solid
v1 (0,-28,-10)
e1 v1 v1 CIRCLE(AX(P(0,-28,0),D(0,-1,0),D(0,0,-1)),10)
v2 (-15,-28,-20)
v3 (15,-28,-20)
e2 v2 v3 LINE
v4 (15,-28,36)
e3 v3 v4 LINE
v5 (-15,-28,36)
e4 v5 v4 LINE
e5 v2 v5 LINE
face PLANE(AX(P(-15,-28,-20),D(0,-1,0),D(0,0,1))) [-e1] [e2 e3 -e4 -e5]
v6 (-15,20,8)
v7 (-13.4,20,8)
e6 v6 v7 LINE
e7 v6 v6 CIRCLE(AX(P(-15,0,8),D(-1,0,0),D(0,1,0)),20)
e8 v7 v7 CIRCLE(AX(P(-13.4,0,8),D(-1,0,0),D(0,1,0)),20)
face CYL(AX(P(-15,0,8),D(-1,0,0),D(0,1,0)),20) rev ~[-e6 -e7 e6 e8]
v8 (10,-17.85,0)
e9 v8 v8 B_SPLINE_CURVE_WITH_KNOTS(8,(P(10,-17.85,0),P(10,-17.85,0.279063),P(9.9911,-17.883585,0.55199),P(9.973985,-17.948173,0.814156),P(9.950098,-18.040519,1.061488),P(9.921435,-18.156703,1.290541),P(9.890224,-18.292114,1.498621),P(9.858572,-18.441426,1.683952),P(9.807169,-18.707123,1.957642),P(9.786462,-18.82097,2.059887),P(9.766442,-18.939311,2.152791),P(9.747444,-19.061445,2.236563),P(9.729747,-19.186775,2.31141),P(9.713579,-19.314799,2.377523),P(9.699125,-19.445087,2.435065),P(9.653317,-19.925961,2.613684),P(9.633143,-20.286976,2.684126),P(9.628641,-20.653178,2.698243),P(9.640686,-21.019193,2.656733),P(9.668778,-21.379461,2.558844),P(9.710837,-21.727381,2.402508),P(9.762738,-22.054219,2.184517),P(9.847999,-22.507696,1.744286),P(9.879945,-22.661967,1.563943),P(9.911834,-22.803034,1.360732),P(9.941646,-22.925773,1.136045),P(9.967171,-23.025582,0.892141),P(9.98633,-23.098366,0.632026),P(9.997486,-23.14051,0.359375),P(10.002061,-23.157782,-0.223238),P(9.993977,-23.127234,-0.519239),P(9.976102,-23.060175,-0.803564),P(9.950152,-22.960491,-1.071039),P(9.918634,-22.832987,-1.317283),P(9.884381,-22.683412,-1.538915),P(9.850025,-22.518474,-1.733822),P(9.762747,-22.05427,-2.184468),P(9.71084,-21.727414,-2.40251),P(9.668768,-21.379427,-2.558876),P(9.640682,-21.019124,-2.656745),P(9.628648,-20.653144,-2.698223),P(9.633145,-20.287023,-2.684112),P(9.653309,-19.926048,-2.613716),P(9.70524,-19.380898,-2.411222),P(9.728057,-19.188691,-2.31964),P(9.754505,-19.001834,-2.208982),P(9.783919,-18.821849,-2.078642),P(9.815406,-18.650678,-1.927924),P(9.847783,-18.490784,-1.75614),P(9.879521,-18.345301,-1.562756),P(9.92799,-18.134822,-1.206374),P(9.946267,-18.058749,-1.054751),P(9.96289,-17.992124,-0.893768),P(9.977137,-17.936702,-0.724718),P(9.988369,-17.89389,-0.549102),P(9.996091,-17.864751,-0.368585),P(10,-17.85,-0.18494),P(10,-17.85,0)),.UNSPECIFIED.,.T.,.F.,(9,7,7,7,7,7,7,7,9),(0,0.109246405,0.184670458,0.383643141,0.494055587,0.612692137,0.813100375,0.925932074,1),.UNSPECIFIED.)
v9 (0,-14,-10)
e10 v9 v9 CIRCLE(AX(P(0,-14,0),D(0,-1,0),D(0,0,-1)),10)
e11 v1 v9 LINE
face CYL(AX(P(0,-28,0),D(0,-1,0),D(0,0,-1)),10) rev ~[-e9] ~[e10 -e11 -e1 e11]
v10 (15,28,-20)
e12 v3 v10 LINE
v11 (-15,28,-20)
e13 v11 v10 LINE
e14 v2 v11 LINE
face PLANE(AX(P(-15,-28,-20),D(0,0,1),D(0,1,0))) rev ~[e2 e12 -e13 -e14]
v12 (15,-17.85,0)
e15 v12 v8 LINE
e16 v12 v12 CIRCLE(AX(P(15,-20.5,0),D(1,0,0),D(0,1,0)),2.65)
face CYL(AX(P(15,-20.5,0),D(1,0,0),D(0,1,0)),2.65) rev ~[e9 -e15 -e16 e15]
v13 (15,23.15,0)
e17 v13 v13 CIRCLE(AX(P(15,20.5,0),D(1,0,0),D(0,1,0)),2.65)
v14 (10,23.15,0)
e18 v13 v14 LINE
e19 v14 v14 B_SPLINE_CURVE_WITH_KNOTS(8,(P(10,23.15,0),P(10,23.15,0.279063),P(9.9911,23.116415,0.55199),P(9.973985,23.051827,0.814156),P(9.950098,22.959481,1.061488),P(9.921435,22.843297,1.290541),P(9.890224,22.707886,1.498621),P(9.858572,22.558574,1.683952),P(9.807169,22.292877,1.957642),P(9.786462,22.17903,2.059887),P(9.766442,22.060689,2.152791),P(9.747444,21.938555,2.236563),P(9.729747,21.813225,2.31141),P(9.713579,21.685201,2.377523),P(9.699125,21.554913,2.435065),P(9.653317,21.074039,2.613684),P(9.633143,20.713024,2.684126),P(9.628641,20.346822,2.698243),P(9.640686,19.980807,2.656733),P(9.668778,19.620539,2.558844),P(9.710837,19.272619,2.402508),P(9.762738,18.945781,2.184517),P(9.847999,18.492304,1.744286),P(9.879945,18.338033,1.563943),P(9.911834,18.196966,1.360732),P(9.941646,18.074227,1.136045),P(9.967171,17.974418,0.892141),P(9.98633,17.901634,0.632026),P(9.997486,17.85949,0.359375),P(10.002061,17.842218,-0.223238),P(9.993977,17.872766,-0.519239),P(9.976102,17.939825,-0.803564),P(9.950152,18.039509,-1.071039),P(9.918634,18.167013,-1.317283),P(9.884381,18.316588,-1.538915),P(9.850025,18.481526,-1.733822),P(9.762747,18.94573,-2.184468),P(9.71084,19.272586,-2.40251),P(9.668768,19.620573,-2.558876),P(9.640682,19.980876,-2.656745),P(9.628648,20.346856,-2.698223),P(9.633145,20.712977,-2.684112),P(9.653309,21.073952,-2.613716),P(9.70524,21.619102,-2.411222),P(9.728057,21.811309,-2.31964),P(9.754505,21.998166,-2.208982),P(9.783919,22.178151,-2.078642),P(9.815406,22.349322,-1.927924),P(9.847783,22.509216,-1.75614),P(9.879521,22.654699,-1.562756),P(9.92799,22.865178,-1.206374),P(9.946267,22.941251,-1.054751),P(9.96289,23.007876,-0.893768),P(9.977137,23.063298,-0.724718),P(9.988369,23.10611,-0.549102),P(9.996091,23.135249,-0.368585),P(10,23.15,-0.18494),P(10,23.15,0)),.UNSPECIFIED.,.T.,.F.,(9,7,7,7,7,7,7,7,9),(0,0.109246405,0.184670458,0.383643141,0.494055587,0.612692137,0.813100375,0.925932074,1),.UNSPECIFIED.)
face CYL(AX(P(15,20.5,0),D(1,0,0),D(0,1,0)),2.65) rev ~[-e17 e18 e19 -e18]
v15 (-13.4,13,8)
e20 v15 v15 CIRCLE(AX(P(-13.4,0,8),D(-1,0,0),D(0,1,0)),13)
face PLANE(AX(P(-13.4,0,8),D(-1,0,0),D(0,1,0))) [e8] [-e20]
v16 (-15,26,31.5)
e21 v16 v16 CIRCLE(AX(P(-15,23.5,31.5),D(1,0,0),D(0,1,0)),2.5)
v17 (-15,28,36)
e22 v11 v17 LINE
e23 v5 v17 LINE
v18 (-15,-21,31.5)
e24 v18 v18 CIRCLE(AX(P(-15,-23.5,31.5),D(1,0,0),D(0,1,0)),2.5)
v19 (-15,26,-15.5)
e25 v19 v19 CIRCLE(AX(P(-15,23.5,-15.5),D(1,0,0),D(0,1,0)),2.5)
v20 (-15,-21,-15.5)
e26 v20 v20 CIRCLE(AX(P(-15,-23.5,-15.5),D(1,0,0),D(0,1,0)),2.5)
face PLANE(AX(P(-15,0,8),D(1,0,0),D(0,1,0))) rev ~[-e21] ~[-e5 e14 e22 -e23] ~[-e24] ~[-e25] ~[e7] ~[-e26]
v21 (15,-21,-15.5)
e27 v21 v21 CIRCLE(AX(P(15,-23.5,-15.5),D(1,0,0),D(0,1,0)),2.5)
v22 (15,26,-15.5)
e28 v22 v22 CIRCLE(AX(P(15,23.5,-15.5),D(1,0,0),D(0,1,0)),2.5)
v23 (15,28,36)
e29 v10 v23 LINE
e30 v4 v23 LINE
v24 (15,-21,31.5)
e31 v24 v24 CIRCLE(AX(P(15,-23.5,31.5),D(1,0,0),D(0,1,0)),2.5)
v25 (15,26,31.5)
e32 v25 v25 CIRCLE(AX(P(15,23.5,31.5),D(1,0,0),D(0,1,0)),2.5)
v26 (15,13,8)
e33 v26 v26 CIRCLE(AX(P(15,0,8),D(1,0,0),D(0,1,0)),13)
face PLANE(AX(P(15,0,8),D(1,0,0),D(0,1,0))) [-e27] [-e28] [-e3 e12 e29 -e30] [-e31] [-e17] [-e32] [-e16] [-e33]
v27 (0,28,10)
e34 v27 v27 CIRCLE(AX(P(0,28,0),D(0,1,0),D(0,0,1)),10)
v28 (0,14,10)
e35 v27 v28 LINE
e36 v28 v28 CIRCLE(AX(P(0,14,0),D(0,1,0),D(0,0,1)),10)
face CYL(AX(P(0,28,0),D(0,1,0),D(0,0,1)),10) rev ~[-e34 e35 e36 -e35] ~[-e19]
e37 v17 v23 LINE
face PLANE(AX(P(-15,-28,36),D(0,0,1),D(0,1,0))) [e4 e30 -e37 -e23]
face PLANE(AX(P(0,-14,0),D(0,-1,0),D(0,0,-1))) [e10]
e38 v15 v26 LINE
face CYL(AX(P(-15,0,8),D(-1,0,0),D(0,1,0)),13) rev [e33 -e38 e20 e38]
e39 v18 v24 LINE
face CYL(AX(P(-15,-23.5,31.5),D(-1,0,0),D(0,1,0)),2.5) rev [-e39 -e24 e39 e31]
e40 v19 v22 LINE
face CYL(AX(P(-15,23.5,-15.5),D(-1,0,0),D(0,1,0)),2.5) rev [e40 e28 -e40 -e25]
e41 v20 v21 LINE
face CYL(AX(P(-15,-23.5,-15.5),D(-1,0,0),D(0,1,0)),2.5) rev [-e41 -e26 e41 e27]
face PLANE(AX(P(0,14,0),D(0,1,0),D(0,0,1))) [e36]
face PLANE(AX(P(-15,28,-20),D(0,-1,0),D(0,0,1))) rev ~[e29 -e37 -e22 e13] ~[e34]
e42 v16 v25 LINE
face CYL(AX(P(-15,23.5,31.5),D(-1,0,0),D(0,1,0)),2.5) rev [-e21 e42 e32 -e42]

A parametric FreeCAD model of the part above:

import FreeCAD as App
import Part
import Sketcher
Q = App.Units.Quantity


def add_polygon(sketch, points):
    """Adds a closed chain of lines whose ends are joined by coincident constraints."""
    first, n = sketch.GeometryCount, len(points)
    for a, b in zip(points, points[1:] + points[:1]):
        sketch.addGeometry(Part.LineSegment(App.Vector(*a, 0), App.Vector(*b, 0)), False)
    for i in range(n):
        sketch.addConstraint(Sketcher.Constraint("Coincident", first + i, 2, first + (i + 1) % n, 1))

doc = App.newDocument("Part")
params = doc.addObject("Spreadsheet::Sheet", "Params")
for row, (alias, value) in enumerate([
    ("sketch1_diameter", "5 mm"),
    ("sketch1_diameter2", "26 mm"),
    ("sketch1_width", "56 mm"),
    ("pad1_length", "30 mm"),
    ("sketch2_diameter", "20 mm"),
    ("pocket1_length", "14 mm"),
    ("sketch3_diameter", "5.3 mm"),
    ("pocket2_length", "7 mm"),
    ("sketch4_diameter", "20 mm"),
    ("pocket3_length", "14 mm"),
    ("sketch5_diameter", "40 mm"),
    ("pocket4_length", "1.6 mm"),
], start=1):
    params.set(f"A{row}", alias)
    params.set(f"B{row}", "=" + value)
    params.setAlias(f"B{row}", alias)

body = doc.addObject("PartDesign::Body", "Body")

# Sketch on YZ plane
sketch1 = body.newObject("Sketcher::SketchObject", "Sketch")
sketch1.AttachmentSupport = (doc.getObject("YZ_Plane"), [""])
sketch1.MapMode = "FlatFace"
add_polygon(sketch1, [(-28, 28), (-28, -28), (28, -28), (28, 28)])  # lines 0-3
sketch1.addGeometry(Part.Circle(App.Vector(-23.5, -23.5, 0), App.Vector(0, 0, 1), 2.5), False)  # 4
sketch1.addGeometry(Part.Circle(App.Vector(23.5, -23.5, 0), App.Vector(0, 0, 1), 2.5), False)  # 5
sketch1.addGeometry(Part.Circle(App.Vector(-23.5, 23.5, 0), App.Vector(0, 0, 1), 2.5), False)  # 6
sketch1.addGeometry(Part.Circle(App.Vector(0, 0, 0), App.Vector(0, 0, 1), 13), False)  # 7
sketch1.addGeometry(Part.Circle(App.Vector(23.5, 23.5, 0), App.Vector(0, 0, 1), 2.5), False)  # 8
sketch1.addConstraint([
    Sketcher.Constraint("Vertical", 0),
    Sketcher.Constraint("Horizontal", 1),
    Sketcher.Constraint("Vertical", 2),
    Sketcher.Constraint("Horizontal", 3),
    Sketcher.Constraint("Coincident", 7, 3, -1, 1),
    Sketcher.Constraint("Equal", 4, 5),
    Sketcher.Constraint("Equal", 5, 6),
    Sketcher.Constraint("Equal", 6, 8),
    Sketcher.Constraint("Symmetric", 5, 3, 6, 3, -1, 1),
    Sketcher.Constraint("Symmetric", 4, 3, 8, 3, -1, 1),
    Sketcher.Constraint("Symmetric", 0, 2, 2, 2, -1, 1),
    Sketcher.Constraint("Symmetric", 4, 3, 5, 3, -2),
    Sketcher.Constraint("Equal", 3, 0),
    Sketcher.Constraint("Diameter", 4, Q("5 mm")),
    Sketcher.Constraint("Diameter", 7, Q("26 mm")),
    Sketcher.Constraint("DistanceX", 1, 1, 1, 2, Q("56 mm")),
    Sketcher.Constraint("DistanceX", 4, 3, 5, 3, Q("47 mm")),
    Sketcher.Constraint("DistanceY", 4, 3, 6, 3, Q("47 mm")),
])
sketch1.setExpression("Constraints[17]", "Params.sketch1_diameter")
sketch1.setExpression("Constraints[18]", "Params.sketch1_diameter2")
sketch1.setExpression("Constraints[19]", "Params.sketch1_width")
pad1 = body.newObject("PartDesign::Pad", "Pad")
pad1.Profile = sketch1
pad1.setExpression("Length", "Params.pad1_length")

# Sketch on XZ plane
sketch2 = body.newObject("Sketcher::SketchObject", "Sketch001")
sketch2.AttachmentSupport = (doc.getObject("XZ_Plane"), [""])
sketch2.MapMode = "FlatFace"
sketch2.AttachmentOffset = App.Placement(App.Vector(0, 0, 28), App.Rotation())
sketch2.addGeometry(Part.Circle(App.Vector(15, -8, 0), App.Vector(0, 0, 1), 10), False)
sketch2.addConstraint([
    Sketcher.Constraint("Diameter", 0, Q("20 mm")),
    Sketcher.Constraint("DistanceX", -1, 1, 0, 3, Q("15 mm")),
    Sketcher.Constraint("DistanceY", 0, 3, -1, 1, Q("8 mm")),
])
sketch2.setExpression("Constraints[0]", "Params.sketch2_diameter")
pocket1 = body.newObject("PartDesign::Pocket", "Pocket")
pocket1.Profile = sketch2
pocket1.setExpression("Length", "Params.pocket1_length")

# Sketch on YZ plane
sketch3 = body.newObject("Sketcher::SketchObject", "Sketch002")
sketch3.AttachmentSupport = (doc.getObject("YZ_Plane"), [""])
sketch3.MapMode = "FlatFace"
sketch3.AttachmentOffset = App.Placement(App.Vector(0, 0, 30), App.Rotation())
sketch3.addGeometry([
    Part.Circle(App.Vector(-20.5, -8, 0), App.Vector(0, 0, 1), 2.65),
    Part.Circle(App.Vector(20.5, -8, 0), App.Vector(0, 0, 1), 2.65),
], False)
sketch3.addConstraint([
    Sketcher.Constraint("Equal", 0, 1),
    Sketcher.Constraint("Symmetric", 0, 3, 1, 3, -2),
    Sketcher.Constraint("Diameter", 0, Q("5.3 mm")),
    Sketcher.Constraint("DistanceY", 0, 3, -1, 1, Q("8 mm")),
    Sketcher.Constraint("DistanceX", 0, 3, 1, 3, Q("41 mm")),
])
sketch3.setExpression("Constraints[2]", "Params.sketch3_diameter")
pocket2 = body.newObject("PartDesign::Pocket", "Pocket001")
pocket2.Profile = sketch3
pocket2.setExpression("Length", "Params.pocket2_length")

# Sketch on XZ plane
sketch4 = body.newObject("Sketcher::SketchObject", "Sketch003")
sketch4.AttachmentSupport = (doc.getObject("XZ_Plane"), [""])
sketch4.MapMode = "FlatFace"
sketch4.AttachmentOffset = App.Placement(App.Vector(0, 0, -28), App.Rotation())
sketch4.addGeometry(Part.Circle(App.Vector(15, -8, 0), App.Vector(0, 0, 1), 10), False)
sketch4.addConstraint([
    Sketcher.Constraint("Diameter", 0, Q("20 mm")),
    Sketcher.Constraint("DistanceX", -1, 1, 0, 3, Q("15 mm")),
    Sketcher.Constraint("DistanceY", 0, 3, -1, 1, Q("8 mm")),
])
sketch4.setExpression("Constraints[0]", "Params.sketch4_diameter")
pocket3 = body.newObject("PartDesign::Pocket", "Pocket002")
pocket3.Profile = sketch4
pocket3.setExpression("Length", "Params.pocket3_length")
pocket3.Reversed = True

# Sketch on YZ plane
sketch5 = body.newObject("Sketcher::SketchObject", "Sketch004")
sketch5.AttachmentSupport = (doc.getObject("YZ_Plane"), [""])
sketch5.MapMode = "FlatFace"
sketch5.addGeometry(Part.Circle(App.Vector(0, 0, 0), App.Vector(0, 0, 1), 20), False)
sketch5.addConstraint([
    Sketcher.Constraint("Coincident", 0, 3, -1, 1),
    Sketcher.Constraint("Diameter", 0, Q("40 mm")),
])
sketch5.setExpression("Constraints[1]", "Params.sketch5_diameter")
pocket4 = body.newObject("PartDesign::Pocket", "Pocket003")
pocket4.Profile = sketch5
pocket4.setExpression("Length", "Params.pocket4_length")
pocket4.Reversed = True
body2 = doc.addObject("PartDesign::Body", "Body001")
doc.recompute()

body.Placement = App.Placement(App.Vector(-15, 0, 8), App.Rotation(App.Vector(0, 0, 1), 0))
boolean = body2.newObject("PartDesign::Boolean", "Boolean")
boolean.Type = "Fuse"
boolean.addObjects([body])

doc.recompute()
